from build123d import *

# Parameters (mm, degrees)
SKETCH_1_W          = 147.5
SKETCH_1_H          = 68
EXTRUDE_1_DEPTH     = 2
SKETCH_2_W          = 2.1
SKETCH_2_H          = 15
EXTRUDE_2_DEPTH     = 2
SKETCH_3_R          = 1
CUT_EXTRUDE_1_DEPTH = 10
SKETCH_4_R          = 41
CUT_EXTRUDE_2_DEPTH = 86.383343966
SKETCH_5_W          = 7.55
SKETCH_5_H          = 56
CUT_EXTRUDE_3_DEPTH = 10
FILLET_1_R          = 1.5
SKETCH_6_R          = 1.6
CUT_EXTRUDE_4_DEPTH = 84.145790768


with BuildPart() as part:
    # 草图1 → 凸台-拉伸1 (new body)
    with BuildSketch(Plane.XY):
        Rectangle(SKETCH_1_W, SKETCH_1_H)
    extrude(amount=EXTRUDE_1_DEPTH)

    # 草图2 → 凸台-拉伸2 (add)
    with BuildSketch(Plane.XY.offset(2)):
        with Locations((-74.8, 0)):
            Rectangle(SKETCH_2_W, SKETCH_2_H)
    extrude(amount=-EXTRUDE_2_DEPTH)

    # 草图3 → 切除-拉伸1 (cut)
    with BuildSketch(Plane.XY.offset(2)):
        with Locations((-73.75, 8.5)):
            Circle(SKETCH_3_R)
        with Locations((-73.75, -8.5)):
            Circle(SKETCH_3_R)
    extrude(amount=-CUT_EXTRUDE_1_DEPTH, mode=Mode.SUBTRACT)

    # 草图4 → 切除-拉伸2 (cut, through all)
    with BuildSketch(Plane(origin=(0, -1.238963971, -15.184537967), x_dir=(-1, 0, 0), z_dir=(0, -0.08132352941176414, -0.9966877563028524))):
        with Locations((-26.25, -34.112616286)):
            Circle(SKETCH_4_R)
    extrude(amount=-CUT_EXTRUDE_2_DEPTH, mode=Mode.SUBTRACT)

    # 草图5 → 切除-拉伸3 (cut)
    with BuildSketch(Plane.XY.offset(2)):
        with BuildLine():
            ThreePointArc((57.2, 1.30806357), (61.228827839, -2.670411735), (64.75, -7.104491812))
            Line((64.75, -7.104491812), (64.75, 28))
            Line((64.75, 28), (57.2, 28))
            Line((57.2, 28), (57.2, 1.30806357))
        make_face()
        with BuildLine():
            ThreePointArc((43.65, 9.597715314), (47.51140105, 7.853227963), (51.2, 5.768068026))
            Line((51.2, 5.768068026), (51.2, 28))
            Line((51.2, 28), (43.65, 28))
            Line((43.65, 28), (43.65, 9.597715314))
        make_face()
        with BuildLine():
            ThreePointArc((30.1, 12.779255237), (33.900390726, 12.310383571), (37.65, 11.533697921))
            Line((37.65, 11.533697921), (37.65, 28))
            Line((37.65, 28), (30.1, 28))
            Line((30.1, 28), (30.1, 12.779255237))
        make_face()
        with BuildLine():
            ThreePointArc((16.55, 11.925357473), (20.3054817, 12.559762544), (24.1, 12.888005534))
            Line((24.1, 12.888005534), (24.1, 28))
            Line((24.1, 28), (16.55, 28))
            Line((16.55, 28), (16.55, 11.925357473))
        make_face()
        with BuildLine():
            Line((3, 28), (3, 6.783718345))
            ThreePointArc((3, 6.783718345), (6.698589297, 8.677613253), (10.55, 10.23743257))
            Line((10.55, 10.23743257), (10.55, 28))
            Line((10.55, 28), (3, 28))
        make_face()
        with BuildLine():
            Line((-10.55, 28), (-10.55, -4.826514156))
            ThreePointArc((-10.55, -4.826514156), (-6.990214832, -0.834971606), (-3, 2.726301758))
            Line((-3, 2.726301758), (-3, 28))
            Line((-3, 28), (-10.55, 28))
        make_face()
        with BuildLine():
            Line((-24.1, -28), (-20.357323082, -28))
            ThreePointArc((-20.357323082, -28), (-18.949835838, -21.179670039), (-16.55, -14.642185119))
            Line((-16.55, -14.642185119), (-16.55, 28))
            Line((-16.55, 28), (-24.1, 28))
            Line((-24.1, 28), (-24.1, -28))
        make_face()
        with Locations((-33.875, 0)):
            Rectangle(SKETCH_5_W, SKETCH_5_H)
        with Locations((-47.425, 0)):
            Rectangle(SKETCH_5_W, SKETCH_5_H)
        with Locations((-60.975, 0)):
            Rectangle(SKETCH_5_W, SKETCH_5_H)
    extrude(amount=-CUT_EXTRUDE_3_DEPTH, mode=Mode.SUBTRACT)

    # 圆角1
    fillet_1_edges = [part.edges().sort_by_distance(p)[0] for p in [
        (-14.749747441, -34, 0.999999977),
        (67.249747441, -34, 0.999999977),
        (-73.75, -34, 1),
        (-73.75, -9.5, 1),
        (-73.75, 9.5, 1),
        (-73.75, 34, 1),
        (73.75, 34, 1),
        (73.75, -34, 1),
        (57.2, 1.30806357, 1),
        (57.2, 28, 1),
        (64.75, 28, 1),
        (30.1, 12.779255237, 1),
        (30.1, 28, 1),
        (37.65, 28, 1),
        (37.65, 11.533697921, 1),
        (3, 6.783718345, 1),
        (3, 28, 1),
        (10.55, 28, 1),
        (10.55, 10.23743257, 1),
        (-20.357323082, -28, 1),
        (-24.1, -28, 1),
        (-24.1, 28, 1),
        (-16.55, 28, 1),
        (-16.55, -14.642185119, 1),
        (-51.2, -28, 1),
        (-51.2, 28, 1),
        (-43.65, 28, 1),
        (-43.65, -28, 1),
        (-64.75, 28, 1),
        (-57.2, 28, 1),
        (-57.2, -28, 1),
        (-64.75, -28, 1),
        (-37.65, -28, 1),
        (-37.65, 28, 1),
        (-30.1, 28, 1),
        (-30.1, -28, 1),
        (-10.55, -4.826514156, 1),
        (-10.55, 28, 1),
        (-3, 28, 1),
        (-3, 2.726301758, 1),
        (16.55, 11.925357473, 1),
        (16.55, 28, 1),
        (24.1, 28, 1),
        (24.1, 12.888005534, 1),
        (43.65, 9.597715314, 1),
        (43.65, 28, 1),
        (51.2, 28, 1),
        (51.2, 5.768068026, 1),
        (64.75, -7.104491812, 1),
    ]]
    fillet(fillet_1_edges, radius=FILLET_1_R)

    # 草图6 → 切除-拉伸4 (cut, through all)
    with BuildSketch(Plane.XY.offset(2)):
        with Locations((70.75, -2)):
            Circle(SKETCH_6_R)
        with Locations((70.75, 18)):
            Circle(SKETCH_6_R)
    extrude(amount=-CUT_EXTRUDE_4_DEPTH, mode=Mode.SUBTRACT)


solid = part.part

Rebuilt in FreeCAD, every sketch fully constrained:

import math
import FreeCAD as App
import Part
import Sketcher

V = App.Vector
Q = App.Units.Quantity


def edges_at(feature, points):
    """Names of the edges that pass closest to the given points."""
    edges = feature.Shape.Edges
    near = lambda p: min(range(len(edges)), key=lambda i: edges[i].distToShape(Part.Vertex(*p))[0])
    return sorted({f"Edge{near(p) + 1}" for p in points})

doc = App.newDocument("Part")
body = doc.addObject("PartDesign::Body", "Body")

sketch1 = body.newObject("Sketcher::SketchObject", "Sketch")
sketch1.AttachmentSupport = (doc.getObject("XY_Plane"), [""])
sketch1.MapMode = "FlatFace"
sketch1.addGeometry(Part.LineSegment(V(-73.75, 34, 0), V(-73.75, -34, 0)), False)
sketch1.addGeometry(Part.LineSegment(V(-73.75, -34, 0), V(73.75, -34, 0)), False)
sketch1.addGeometry(Part.LineSegment(V(73.75, -34, 0), V(73.75, 34, 0)), False)
sketch1.addGeometry(Part.LineSegment(V(73.75, 34, 0), V(-73.75, 34, 0)), False)
sketch1.addConstraint(Sketcher.Constraint("Coincident", 0, 2, 1, 1))
sketch1.addConstraint(Sketcher.Constraint("Coincident", 1, 2, 2, 1))
sketch1.addConstraint(Sketcher.Constraint("Coincident", 2, 2, 3, 1))
sketch1.addConstraint(Sketcher.Constraint("Coincident", 3, 2, 0, 1))
sketch1.addConstraint(Sketcher.Constraint("Vertical", 0))
sketch1.addConstraint(Sketcher.Constraint("Horizontal", 1))
sketch1.addConstraint(Sketcher.Constraint("Vertical", 2))
sketch1.addConstraint(Sketcher.Constraint("Horizontal", 3))
sketch1.addConstraint(Sketcher.Constraint("Symmetric", 0, 2, 2, 2, -1, 1))
sketch1.addConstraint(Sketcher.Constraint("DistanceY", 0, 2, 0, 1, Q("68 mm")))
sketch1.addConstraint(Sketcher.Constraint("DistanceX", 1, 1, 1, 2, Q("147.5 mm")))
pad1 = body.newObject("PartDesign::Pad", "Pad")
pad1.Profile = sketch1
pad1.Length = 2

sketch2 = body.newObject("Sketcher::SketchObject", "Sketch001")
sketch2.AttachmentSupport = (doc.getObject("XY_Plane"), [""])
sketch2.MapMode = "FlatFace"
sketch2.AttachmentOffset = App.Placement(V(0, 0, 2), App.Rotation())
sketch2.addGeometry(Part.LineSegment(V(-75.85, 7.5, 0), V(-75.85, -7.5, 0)), False)
sketch2.addGeometry(Part.LineSegment(V(-75.85, -7.5, 0), V(-73.75, -7.5, 0)), False)
sketch2.addGeometry(Part.LineSegment(V(-73.75, -7.5, 0), V(-73.75, 7.5, 0)), False)
sketch2.addGeometry(Part.LineSegment(V(-73.75, 7.5, 0), V(-75.85, 7.5, 0)), False)
sketch2.addConstraint(Sketcher.Constraint("Coincident", 0, 2, 1, 1))
sketch2.addConstraint(Sketcher.Constraint("Coincident", 1, 2, 2, 1))
sketch2.addConstraint(Sketcher.Constraint("Coincident", 2, 2, 3, 1))
sketch2.addConstraint(Sketcher.Constraint("Coincident", 3, 2, 0, 1))
sketch2.addConstraint(Sketcher.Constraint("Vertical", 0))
sketch2.addConstraint(Sketcher.Constraint("Horizontal", 1))
sketch2.addConstraint(Sketcher.Constraint("Vertical", 2))
sketch2.addConstraint(Sketcher.Constraint("Horizontal", 3))
sketch2.addConstraint(Sketcher.Constraint("DistanceY", 0, 2, 0, 1, Q("15 mm")))
sketch2.addConstraint(Sketcher.Constraint("DistanceX", 1, 1, 1, 2, Q("2.1 mm")))
sketch2.addConstraint(Sketcher.Constraint("DistanceY", 0, 2, -1, 1, Q("7.5 mm")))
sketch2.addConstraint(Sketcher.Constraint("DistanceX", 0, 2, -1, 1, Q("75.85 mm")))
pad2 = body.newObject("PartDesign::Pad", "Pad001")
pad2.Profile = sketch2
pad2.Length = 2
pad2.Reversed = True

sketch3 = body.newObject("Sketcher::SketchObject", "Sketch002")
sketch3.AttachmentSupport = (doc.getObject("XY_Plane"), [""])
sketch3.MapMode = "FlatFace"
sketch3.AttachmentOffset = App.Placement(V(0, 0, 2), App.Rotation())
sketch3.addGeometry(Part.Circle(V(-73.75, 8.5, 0), V(0, 0, 1), 1), False)
sketch3.addGeometry(Part.Circle(V(-73.75, -8.5, 0), V(0, 0, 1), 1), False)
sketch3.addConstraint(Sketcher.Constraint("Equal", 0, 1))
sketch3.addConstraint(Sketcher.Constraint("Symmetric", 0, 3, 1, 3, -1))
sketch3.addConstraint(Sketcher.Constraint("Diameter", 0, Q("2 mm")))
sketch3.addConstraint(Sketcher.Constraint("DistanceY", 1, 3, 0, 3, Q("17 mm")))
sketch3.addConstraint(Sketcher.Constraint("DistanceX", 0, 3, -1, 1, Q("73.75 mm")))
pocket1 = body.newObject("PartDesign::Pocket", "Pocket")
pocket1.Profile = sketch3
pocket1.Length = 10

sketch4 = body.newObject("Sketcher::SketchObject", "Sketch003")
sketch4.Placement = App.Placement(V(0, -1.238964, -15.184538), App.Rotation(V(-1, 0, 0), V(0, 0.996687756, -0.081323529), V(0, -0.081323529, -0.996687756), "ZXY"))
sketch4.addGeometry(Part.Circle(V(-26.25, -34.112616, 0), V(0, 0, 1), 41), False)
sketch4.addConstraint(Sketcher.Constraint("Diameter", 0, Q("82 mm")))
sketch4.addConstraint(Sketcher.Constraint("DistanceX", 0, 3, -1, 1, Q("26.25 mm")))
sketch4.addConstraint(Sketcher.Constraint("DistanceY", 0, 3, -1, 1, Q("34.112616 mm")))
pocket2 = body.newObject("PartDesign::Pocket", "Pocket001")
pocket2.Profile = sketch4
pocket2.Type = "ThroughAll"

sketch5 = body.newObject("Sketcher::SketchObject", "Sketch004")
sketch5.AttachmentSupport = (doc.getObject("XY_Plane"), [""])
sketch5.MapMode = "FlatFace"
sketch5.AttachmentOffset = App.Placement(V(0, 0, 2), App.Rotation())
sketch5.addGeometry(Part.ArcOfCircle(Part.Circle(V(26.25, -34.062794, 0), V(0, 0, 1), 47), math.radians(35.000311), math.radians(48.813616)), False)
sketch5.addGeometry(Part.LineSegment(V(64.75, -7.104492, 0), V(64.75, 28, 0)), False)
sketch5.addGeometry(Part.LineSegment(V(64.75, 28, 0), V(57.2, 28, 0)), False)
sketch5.addGeometry(Part.LineSegment(V(57.2, 28, 0), V(57.2, 1.308064, 0)), False)
sketch5.addGeometry(Part.ArcOfCircle(Part.Circle(V(26.25, -34.062794, 0), V(0, 0, 1), 47), math.radians(57.937024), math.radians(68.27126)), False)
sketch5.addGeometry(Part.LineSegment(V(51.2, 5.768068, 0), V(51.2, 28, 0)), False)
sketch5.addGeometry(Part.LineSegment(V(51.2, 28, 0), V(43.65, 28, 0)), False)
sketch5.addGeometry(Part.LineSegment(V(43.65, 28, 0), V(43.65, 9.597715, 0)), False)
sketch5.addGeometry(Part.ArcOfCircle(Part.Circle(V(26.25, -34.062793, 0), V(0, 0, 1), 47), math.radians(75.962719), math.radians(85.301358)), False)
sketch5.addGeometry(Part.LineSegment(V(37.65, 11.533698, 0), V(37.65, 28, 0)), False)
sketch5.addGeometry(Part.LineSegment(V(37.65, 28, 0), V(30.1, 28, 0)), False)
sketch5.addGeometry(Part.LineSegment(V(30.1, 28, 0), V(30.1, 12.779255, 0)), False)
sketch5.addGeometry(Part.ArcOfCircle(Part.Circle(V(26.25, -34.062794, 0), V(0, 0, 1), 47), math.radians(92.621892), math.radians(101.910469)), False)
sketch5.addGeometry(Part.LineSegment(V(24.1, 12.888006, 0), V(24.1, 28, 0)), False)
sketch5.addGeometry(Part.LineSegment(V(24.1, 28, 0), V(16.55, 28, 0)), False)
sketch5.addGeometry(Part.LineSegment(V(16.55, 28, 0), V(16.55, 11.925357, 0)), False)
sketch5.addGeometry(Part.LineSegment(V(3, 28, 0), V(3, 6.783718, 0)), False)
sketch5.addGeometry(Part.ArcOfCircle(Part.Circle(V(26.25, -34.062793, 0), V(0, 0, 1), 47), math.radians(109.514326), math.radians(119.648707)), False)
sketch5.addGeometry(Part.LineSegment(V(10.55, 10.237433, 0), V(10.55, 28, 0)), False)
sketch5.addGeometry(Part.LineSegment(V(10.55, 28, 0), V(3, 28, 0)), False)
sketch5.addGeometry(Part.LineSegment(V(-10.55, 28, 0), V(-10.55, -4.826514, 0)), False)
sketch5.addGeometry(Part.ArcOfCircle(Part.Circle(V(26.25, -34.062793, 0), V(0, 0, 1), 47), math.radians(128.487247), math.radians(141.534119)), False)
sketch5.addGeometry(Part.LineSegment(V(-3, 2.726302, 0), V(-3, 28, 0)), False)
sketch5.addGeometry(Part.LineSegment(V(-3, 28, 0), V(-10.55, 28, 0)), False)
sketch5.addGeometry(Part.LineSegment(V(-24.1, -28, 0), V(-20.357323, -28, 0)), False)
sketch5.addGeometry(Part.ArcOfCircle(Part.Circle(V(26.25, -34.062793, 0), V(0, 0, 1), 47), math.radians(155.593708), math.radians(172.588444)), False)
sketch5.addGeometry(Part.LineSegment(V(-16.55, -14.642185, 0), V(-16.55, 28, 0)), False)
sketch5.addGeometry(Part.LineSegment(V(-16.55, 28, 0), V(-24.1, 28, 0)), False)
sketch5.addGeometry(Part.LineSegment(V(-24.1, 28, 0), V(-24.1, -28, 0)), False)
sketch5.addGeometry(Part.LineSegment(V(-37.65, 28, 0), V(-37.65, -28, 0)), False)
sketch5.addGeometry(Part.LineSegment(V(-37.65, -28, 0), V(-30.1, -28, 0)), False)
sketch5.addGeometry(Part.LineSegment(V(-30.1, -28, 0), V(-30.1, 28, 0)), False)
sketch5.addGeometry(Part.LineSegment(V(-30.1, 28, 0), V(-37.65, 28, 0)), False)
sketch5.addGeometry(Part.LineSegment(V(-51.2, 28, 0), V(-51.2, -28, 0)), False)
sketch5.addGeometry(Part.LineSegment(V(-51.2, -28, 0), V(-43.65, -28, 0)), False)
sketch5.addGeometry(Part.LineSegment(V(-43.65, -28, 0), V(-43.65, 28, 0)), False)
sketch5.addGeometry(Part.LineSegment(V(-43.65, 28, 0), V(-51.2, 28, 0)), False)
sketch5.addGeometry(Part.LineSegment(V(-64.75, 28, 0), V(-64.75, -28, 0)), False)
sketch5.addGeometry(Part.LineSegment(V(-64.75, -28, 0), V(-57.2, -28, 0)), False)
sketch5.addGeometry(Part.LineSegment(V(-57.2, -28, 0), V(-57.2, 28, 0)), False)
sketch5.addGeometry(Part.LineSegment(V(-57.2, 28, 0), V(-64.75, 28, 0)), False)
sketch5.addConstraint(Sketcher.Constraint("Coincident", 0, 1, 1, 1))
sketch5.addConstraint(Sketcher.Constraint("Coincident", 1, 2, 2, 1))
sketch5.addConstraint(Sketcher.Constraint("Coincident", 2, 2, 3, 1))
sketch5.addConstraint(Sketcher.Constraint("Coincident", 3, 2, 0, 2))
sketch5.addConstraint(Sketcher.Constraint("Coincident", 4, 1, 5, 1))
sketch5.addConstraint(Sketcher.Constraint("Coincident", 5, 2, 6, 1))
sketch5.addConstraint(Sketcher.Constraint("Coincident", 6, 2, 7, 1))
sketch5.addConstraint(Sketcher.Constraint("Coincident", 7, 2, 4, 2))
sketch5.addConstraint(Sketcher.Constraint("Coincident", 8, 1, 9, 1))
sketch5.addConstraint(Sketcher.Constraint("Coincident", 9, 2, 10, 1))
sketch5.addConstraint(Sketcher.Constraint("Coincident", 10, 2, 11, 1))
sketch5.addConstraint(Sketcher.Constraint("Coincident", 11, 2, 8, 2))
sketch5.addConstraint(Sketcher.Constraint("Coincident", 12, 1, 13, 1))
sketch5.addConstraint(Sketcher.Constraint("Coincident", 13, 2, 14, 1))
sketch5.addConstraint(Sketcher.Constraint("Coincident", 14, 2, 15, 1))
sketch5.addConstraint(Sketcher.Constraint("Coincident", 15, 2, 12, 2))
sketch5.addConstraint(Sketcher.Constraint("Coincident", 16, 2, 17, 2))
sketch5.addConstraint(Sketcher.Constraint("Coincident", 17, 1, 18, 1))
sketch5.addConstraint(Sketcher.Constraint("Coincident", 18, 2, 19, 1))
sketch5.addConstraint(Sketcher.Constraint("Coincident", 19, 2, 16, 1))
sketch5.addConstraint(Sketcher.Constraint("Coincident", 20, 2, 21, 2))
sketch5.addConstraint(Sketcher.Constraint("Coincident", 21, 1, 22, 1))
sketch5.addConstraint(Sketcher.Constraint("Coincident", 22, 2, 23, 1))
sketch5.addConstraint(Sketcher.Constraint("Coincident", 23, 2, 20, 1))
sketch5.addConstraint(Sketcher.Constraint("Coincident", 24, 2, 25, 2))
sketch5.addConstraint(Sketcher.Constraint("Coincident", 25, 1, 26, 1))
sketch5.addConstraint(Sketcher.Constraint("Coincident", 26, 2, 27, 1))
sketch5.addConstraint(Sketcher.Constraint("Coincident", 27, 2, 28, 1))
sketch5.addConstraint(Sketcher.Constraint("Coincident", 28, 2, 24, 1))
sketch5.addConstraint(Sketcher.Constraint("Coincident", 29, 2, 30, 1))
sketch5.addConstraint(Sketcher.Constraint("Coincident", 30, 2, 31, 1))
sketch5.addConstraint(Sketcher.Constraint("Coincident", 31, 2, 32, 1))
sketch5.addConstraint(Sketcher.Constraint("Coincident", 32, 2, 29, 1))
sketch5.addConstraint(Sketcher.Constraint("Coincident", 33, 2, 34, 1))
sketch5.addConstraint(Sketcher.Constraint("Coincident", 34, 2, 35, 1))
sketch5.addConstraint(Sketcher.Constraint("Coincident", 35, 2, 36, 1))
sketch5.addConstraint(Sketcher.Constraint("Coincident", 36, 2, 33, 1))
sketch5.addConstraint(Sketcher.Constraint("Coincident", 37, 2, 38, 1))
sketch5.addConstraint(Sketcher.Constraint("Coincident", 38, 2, 39, 1))
sketch5.addConstraint(Sketcher.Constraint("Coincident", 39, 2, 40, 1))
sketch5.addConstraint(Sketcher.Constraint("Coincident", 40, 2, 37, 1))
sketch5.addConstraint(Sketcher.Constraint("Vertical", 1))
sketch5.addConstraint(Sketcher.Constraint("Horizontal", 2))
sketch5.addConstraint(Sketcher.Constraint("Vertical", 3))
sketch5.addConstraint(Sketcher.Constraint("Vertical", 5))
sketch5.addConstraint(Sketcher.Constraint("Horizontal", 6))
sketch5.addConstraint(Sketcher.Constraint("Vertical", 7))
sketch5.addConstraint(Sketcher.Constraint("Vertical", 9))
sketch5.addConstraint(Sketcher.Constraint("Horizontal", 10))
sketch5.addConstraint(Sketcher.Constraint("Vertical", 11))
sketch5.addConstraint(Sketcher.Constraint("Vertical", 13))
sketch5.addConstraint(Sketcher.Constraint("Horizontal", 14))
sketch5.addConstraint(Sketcher.Constraint("Vertical", 15))
sketch5.addConstraint(Sketcher.Constraint("Vertical", 16))
sketch5.addConstraint(Sketcher.Constraint("Vertical", 18))
sketch5.addConstraint(Sketcher.Constraint("Horizontal", 19))
sketch5.addConstraint(Sketcher.Constraint("Vertical", 20))
sketch5.addConstraint(Sketcher.Constraint("Vertical", 22))
sketch5.addConstraint(Sketcher.Constraint("Horizontal", 23))
sketch5.addConstraint(Sketcher.Constraint("Horizontal", 24))
sketch5.addConstraint(Sketcher.Constraint("Vertical", 26))
sketch5.addConstraint(Sketcher.Constraint("Horizontal", 27))
sketch5.addConstraint(Sketcher.Constraint("Vertical", 28))
sketch5.addConstraint(Sketcher.Constraint("Vertical", 29))
sketch5.addConstraint(Sketcher.Constraint("Horizontal", 30))
sketch5.addConstraint(Sketcher.Constraint("Vertical", 31))
sketch5.addConstraint(Sketcher.Constraint("Horizontal", 32))
sketch5.addConstraint(Sketcher.Constraint("Vertical", 33))
sketch5.addConstraint(Sketcher.Constraint("Horizontal", 34))
sketch5.addConstraint(Sketcher.Constraint("Vertical", 35))
sketch5.addConstraint(Sketcher.Constraint("Horizontal", 36))
sketch5.addConstraint(Sketcher.Constraint("Vertical", 37))
sketch5.addConstraint(Sketcher.Constraint("Horizontal", 38))
sketch5.addConstraint(Sketcher.Constraint("Vertical", 39))
sketch5.addConstraint(Sketcher.Constraint("Horizontal", 40))
sketch5.addConstraint(Sketcher.Constraint("Coincident", 4, 3, 0, 3))
sketch5.addConstraint(Sketcher.Constraint("Coincident", 8, 3, 0, 3))
sketch5.addConstraint(Sketcher.Constraint("Coincident", 12, 3, 0, 3))
sketch5.addConstraint(Sketcher.Constraint("Coincident", 17, 3, 0, 3))
sketch5.addConstraint(Sketcher.Constraint("Coincident", 21, 3, 0, 3))
sketch5.addConstraint(Sketcher.Constraint("Coincident", 25, 3, 0, 3))
sketch5.addConstraint(Sketcher.Constraint("Equal", 0, 4))
sketch5.addConstraint(Sketcher.Constraint("Equal", 4, 8))
sketch5.addConstraint(Sketcher.Constraint("Equal", 8, 12))
sketch5.addConstraint(Sketcher.Constraint("Equal", 12, 17))
sketch5.addConstraint(Sketcher.Constraint("Equal", 17, 21))
sketch5.addConstraint(Sketcher.Constraint("Equal", 21, 25))
sketch5.addConstraint(Sketcher.Constraint("Symmetric", 13, 2, 28, 2, -1, 1))
sketch5.addConstraint(Sketcher.Constraint("Symmetric", 9, 2, 29, 2, -1, 1))
sketch5.addConstraint(Sketcher.Constraint("Symmetric", 5, 2, 33, 2, -1, 1))
sketch5.addConstraint(Sketcher.Constraint("Symmetric", 1, 2, 37, 2, -1, 1))
sketch5.addConstraint(Sketcher.Constraint("Symmetric", 19, 2, 22, 2, -2))
sketch5.addConstraint(Sketcher.Constraint("Symmetric", 14, 2, 26, 2, -2))
sketch5.addConstraint(Sketcher.Constraint("Symmetric", 10, 2, 31, 2, -2))
sketch5.addConstraint(Sketcher.Constraint("Symmetric", 6, 2, 35, 2, -2))
sketch5.addConstraint(Sketcher.Constraint("Symmetric", 2, 2, 39, 2, -2))
sketch5.addConstraint(Sketcher.Constraint("Horizontal", 2, 2, 5, 2))
sketch5.addConstraint(Sketcher.Constraint("Horizontal", 6, 2, 9, 2))
sketch5.addConstraint(Sketcher.Constraint("Horizontal", 10, 2, 13, 2))
sketch5.addConstraint(Sketcher.Constraint("Horizontal", 14, 2, 18, 2))
sketch5.addConstraint(Sketcher.Constraint("Equal", 2, 6))
sketch5.addConstraint(Sketcher.Constraint("Equal", 6, 10))
sketch5.addConstraint(Sketcher.Constraint("Equal", 10, 14))
sketch5.addConstraint(Sketcher.Constraint("Equal", 14, 19))
sketch5.addConstraint(Sketcher.Constraint("Equal", 19, 23))
sketch5.addConstraint(Sketcher.Constraint("Radius", 0, Q("47 mm")))
sketch5.addConstraint(Sketcher.Constraint("DistanceY", 28, 2, 28, 1, Q("56 mm")))
sketch5.addConstraint(Sketcher.Constraint("DistanceX", -1, 1, 16, 2, Q("3 mm")))
sketch5.addConstraint(Sketcher.Constraint("DistanceX", 4, 1, 3, 2, Q("6 mm")))
sketch5.addConstraint(Sketcher.Constraint("DistanceX", 8, 1, 7, 2, Q("6 mm")))
sketch5.addConstraint(Sketcher.Constraint("DistanceX", 12, 1, 11, 2, Q("6 mm")))
sketch5.addConstraint(Sketcher.Constraint("DistanceX", 17, 1, 15, 2, Q("6 mm")))
sketch5.addConstraint(Sketcher.Constraint("DistanceX", 2, 2, 2, 1, Q("7.55 mm")))
sketch5.addConstraint(Sketcher.Constraint("DistanceX", 8, 3, 0, 1, Q("38.5 mm")))
sketch5.addConstraint(Sketcher.Constraint("DistanceY", 22, 1, 22, 2, Q("25.273698 mm")))
pocket3 = body.newObject("PartDesign::Pocket", "Pocket002")
pocket3.Profile = sketch5
pocket3.Length = 10
doc.recompute()

fillet = body.newObject("PartDesign::Fillet", "Fillet")
fillet.Base = (pocket3, edges_at(pocket3, [
    (-14.75, -34, 1),
    (67.25, -34, 1),
    (-73.75, -34, 1),
    (-73.75, -9.5, 1),
    (-73.75, 9.5, 1),
    (-73.75, 34, 1),
    (73.75, 34, 1),
    (73.75, -34, 1),
    (57.2, 1.308, 1),
    (57.2, 28, 1),
    (64.75, 28, 1),
    (30.1, 12.779, 1),
    (30.1, 28, 1),
    (37.65, 28, 1),
    (37.65, 11.534, 1),
    (3, 6.784, 1),
    (3, 28, 1),
    (10.55, 28, 1),
    (10.55, 10.237, 1),
    (-20.357, -28, 1),
    (-24.1, -28, 1),
    (-24.1, 28, 1),
    (-16.55, 28, 1),
    (-16.55, -14.642, 1),
    (-51.2, -28, 1),
    (-51.2, 28, 1),
    (-43.65, 28, 1),
    (-43.65, -28, 1),
    (-64.75, 28, 1),
    (-57.2, 28, 1),
    (-57.2, -28, 1),
    (-64.75, -28, 1),
    (-37.65, -28, 1),
    (-37.65, 28, 1),
    (-30.1, 28, 1),
    (-30.1, -28, 1),
    (-10.55, -4.827, 1),
    (-10.55, 28, 1),
    (-3, 28, 1),
    (-3, 2.726, 1),
    (16.55, 11.925, 1),
    (16.55, 28, 1),
    (24.1, 28, 1),
    (24.1, 12.888, 1),
    (43.65, 9.598, 1),
    (43.65, 28, 1),
    (51.2, 28, 1),
    (51.2, 5.768, 1),
    (64.75, -7.104, 1),
]))
fillet.Radius = 1.5

sketch6 = body.newObject("Sketcher::SketchObject", "Sketch005")
sketch6.AttachmentSupport = (doc.getObject("XY_Plane"), [""])
sketch6.MapMode = "FlatFace"
sketch6.AttachmentOffset = App.Placement(V(0, 0, 2), App.Rotation())
sketch6.addGeometry(Part.Circle(V(70.75, -2, 0), V(0, 0, 1), 1.6), False)
sketch6.addGeometry(Part.Circle(V(70.75, 18, 0), V(0, 0, 1), 1.6), False)
sketch6.addConstraint(Sketcher.Constraint("Equal", 0, 1))
sketch6.addConstraint(Sketcher.Constraint("Vertical", 0, 3, 1, 3))
sketch6.addConstraint(Sketcher.Constraint("Diameter", 0, Q("3.2 mm")))
sketch6.addConstraint(Sketcher.Constraint("DistanceY", 0, 3, -1, 1, Q("2 mm")))
sketch6.addConstraint(Sketcher.Constraint("DistanceY", -1, 1, 1, 3, Q("18 mm")))
sketch6.addConstraint(Sketcher.Constraint("DistanceX", -1, 1, 0, 3, Q("70.75 mm")))
pocket4 = body.newObject("PartDesign::Pocket", "Pocket003")
pocket4.Profile = sketch6
pocket4.Type = "ThroughAll"

doc.recompute()
